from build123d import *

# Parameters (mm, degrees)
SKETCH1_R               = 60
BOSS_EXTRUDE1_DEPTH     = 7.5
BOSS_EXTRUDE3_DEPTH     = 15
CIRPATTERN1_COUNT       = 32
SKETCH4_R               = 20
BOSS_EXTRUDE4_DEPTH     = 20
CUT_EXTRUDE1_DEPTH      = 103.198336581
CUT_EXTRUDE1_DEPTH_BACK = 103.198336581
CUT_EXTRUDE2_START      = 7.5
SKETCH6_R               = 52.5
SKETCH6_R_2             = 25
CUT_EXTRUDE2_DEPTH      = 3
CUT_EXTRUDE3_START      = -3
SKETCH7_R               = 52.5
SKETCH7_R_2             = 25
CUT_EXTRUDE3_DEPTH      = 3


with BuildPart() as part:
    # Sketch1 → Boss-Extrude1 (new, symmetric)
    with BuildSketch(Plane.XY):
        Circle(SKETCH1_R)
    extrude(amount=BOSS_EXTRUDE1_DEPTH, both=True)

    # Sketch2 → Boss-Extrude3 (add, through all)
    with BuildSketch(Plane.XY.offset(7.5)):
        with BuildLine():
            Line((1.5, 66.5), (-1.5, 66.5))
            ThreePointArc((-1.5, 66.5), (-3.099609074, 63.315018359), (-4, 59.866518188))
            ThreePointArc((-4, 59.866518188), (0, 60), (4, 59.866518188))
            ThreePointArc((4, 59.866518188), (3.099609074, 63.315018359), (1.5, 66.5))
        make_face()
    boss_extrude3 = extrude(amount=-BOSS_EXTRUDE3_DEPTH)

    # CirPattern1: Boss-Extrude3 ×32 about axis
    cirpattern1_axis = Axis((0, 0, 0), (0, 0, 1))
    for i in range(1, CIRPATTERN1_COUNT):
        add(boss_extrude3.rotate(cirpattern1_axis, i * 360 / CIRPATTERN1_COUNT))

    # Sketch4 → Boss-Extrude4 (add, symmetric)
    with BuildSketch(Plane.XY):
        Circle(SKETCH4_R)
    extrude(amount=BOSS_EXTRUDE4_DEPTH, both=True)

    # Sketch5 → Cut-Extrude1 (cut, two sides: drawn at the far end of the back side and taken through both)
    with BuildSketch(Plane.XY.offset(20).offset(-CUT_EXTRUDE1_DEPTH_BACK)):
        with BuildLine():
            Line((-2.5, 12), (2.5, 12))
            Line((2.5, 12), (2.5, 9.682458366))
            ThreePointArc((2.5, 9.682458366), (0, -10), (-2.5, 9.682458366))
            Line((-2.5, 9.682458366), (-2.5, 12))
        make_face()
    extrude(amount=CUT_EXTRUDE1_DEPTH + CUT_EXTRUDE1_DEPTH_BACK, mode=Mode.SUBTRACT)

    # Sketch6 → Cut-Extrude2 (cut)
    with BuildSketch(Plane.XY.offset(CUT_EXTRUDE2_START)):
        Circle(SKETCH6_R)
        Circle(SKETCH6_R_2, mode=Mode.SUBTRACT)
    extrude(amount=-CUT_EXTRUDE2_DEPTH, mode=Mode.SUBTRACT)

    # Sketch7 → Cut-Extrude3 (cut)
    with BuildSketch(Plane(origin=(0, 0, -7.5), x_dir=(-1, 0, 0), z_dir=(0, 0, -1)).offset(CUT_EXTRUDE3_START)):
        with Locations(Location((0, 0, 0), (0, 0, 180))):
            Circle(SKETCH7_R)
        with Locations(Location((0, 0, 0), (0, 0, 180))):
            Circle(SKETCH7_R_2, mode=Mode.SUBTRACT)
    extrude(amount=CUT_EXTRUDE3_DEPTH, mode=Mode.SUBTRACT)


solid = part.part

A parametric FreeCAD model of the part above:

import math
import FreeCAD as App
import Part
import Sketcher

V = App.Vector
Q = App.Units.Quantity

doc = App.newDocument("Part")
params = doc.addObject("Spreadsheet::Sheet", "Params")
for row, (alias, value) in enumerate([
    ("sketch1_diameter", "120 mm"),
    ("pad1_length", "15 mm"),
    ("sketch2_radius", "17 mm"),
    ("sketch2_radius2", "60 mm"),
    ("sketch2_width", "3 mm"),
    ("pad2_length", "15 mm"),
    ("sketch3_diameter", "40 mm"),
    ("pad3_length", "40 mm"),
    ("sketch4_radius", "10 mm"),
    ("sketch4_width", "5 mm"),
    ("sketch5_diameter", "105 mm"),
    ("sketch5_diameter2", "50 mm"),
    ("pocket2_length", "3 mm"),
    ("sketch6_diameter", "105 mm"),
    ("sketch6_diameter2", "50 mm"),
    ("pocket3_length", "3 mm"),
], start=1):
    params.set(f"A{row}", alias)
    params.set(f"B{row}", "=" + value)
    params.setAlias(f"B{row}", alias)

body = doc.addObject("PartDesign::Body", "Body")

# Sketch on XY plane
sketch1 = body.newObject("Sketcher::SketchObject", "Sketch")
sketch1.AttachmentSupport = (doc.getObject("XY_Plane"), [""])
sketch1.MapMode = "FlatFace"
sketch1.addGeometry(Part.Circle(V(0, 0, 0), V(0, 0, 1), 60), False)
sketch1.addConstraint([
    Sketcher.Constraint("Coincident", 0, 3, -1, 1),
    Sketcher.Constraint("Diameter", 0, Q("120 mm")),
])
sketch1.setExpression("Constraints[1]", "Params.sketch1_diameter")
pad1 = body.newObject("PartDesign::Pad", "Pad")
pad1.Profile = sketch1
pad1.setExpression("Length", "Params.pad1_length")
pad1.Midplane = True

# Sketch on XY plane
sketch2 = body.newObject("Sketcher::SketchObject", "Sketch001")
sketch2.AttachmentSupport = (doc.getObject("XY_Plane"), [""])
sketch2.MapMode = "FlatFace"
sketch2.AttachmentOffset = App.Placement(V(0, 0, 7.5), App.Rotation())
sketch2.addGeometry([
    Part.LineSegment(V(1.5, 66.5, 0), V(-1.5, 66.5, 0)),
    Part.ArcOfCircle(Part.Circle(V(12.8, 57.3, 0), V(0, 0, 1), 17), math.radians(147), math.radians(171)),
    Part.ArcOfCircle(Part.Circle(V(0, 0, 0), V(0, 0, 1), 60), math.radians(86.18), math.radians(93.82)),
    Part.ArcOfCircle(Part.Circle(V(-12.8, 57.3, 0), V(0, 0, 1), 17), math.radians(9), math.radians(33)),
], False)
sketch2.addConstraint([
    Sketcher.Constraint("Coincident", 0, 2, 1, 1),
    Sketcher.Constraint("Coincident", 1, 2, 2, 2),
    Sketcher.Constraint("Coincident", 2, 1, 3, 1),
    Sketcher.Constraint("Coincident", 3, 2, 0, 1),
    Sketcher.Constraint("Horizontal", 0),
    Sketcher.Constraint("Coincident", 2, 3, -1, 1),
    Sketcher.Constraint("Equal", 1, 3),
    Sketcher.Constraint("Symmetric", 1, 3, 3, 3, -2),
    Sketcher.Constraint("Radius", 1, Q("17 mm")),
    Sketcher.Constraint("Radius", 2, Q("60 mm")),
    Sketcher.Constraint("DistanceX", 0, 2, 0, 1, Q("3 mm")),
    Sketcher.Constraint("DistanceX", 1, 2, -1, 1, Q("4 mm")),
    Sketcher.Constraint("DistanceY", -1, 1, 0, 2, Q("66.5 mm")),
])
sketch2.setExpression("Constraints[8]", "Params.sketch2_radius")
sketch2.setExpression("Constraints[9]", "Params.sketch2_radius2")
sketch2.setExpression("Constraints[10]", "Params.sketch2_width")
pad2 = body.newObject("PartDesign::Pad", "Pad001")
pad2.Profile = sketch2
pad2.setExpression("Length", "Params.pad2_length")
pad2.Reversed = True
doc.recompute()

polarpattern = body.newObject("PartDesign::PolarPattern", "PolarPattern")
polarpattern.Originals = [pad2]
polarpattern.Axis = (doc.getObject("Z_Axis"), [""])
polarpattern.Angle = 360
polarpattern.Occurrences = 32
body.Tip = polarpattern

# Sketch on XY plane
sketch3 = body.newObject("Sketcher::SketchObject", "Sketch002")
sketch3.AttachmentSupport = (doc.getObject("XY_Plane"), [""])
sketch3.MapMode = "FlatFace"
sketch3.addGeometry(Part.Circle(V(0, 0, 0), V(0, 0, 1), 20), False)
sketch3.addConstraint([
    Sketcher.Constraint("Coincident", 0, 3, -1, 1),
    Sketcher.Constraint("Diameter", 0, Q("40 mm")),
])
sketch3.setExpression("Constraints[1]", "Params.sketch3_diameter")
pad3 = body.newObject("PartDesign::Pad", "Pad002")
pad3.Profile = sketch3
pad3.setExpression("Length", "Params.pad3_length")
pad3.Midplane = True

# Sketch on XY plane
sketch4 = body.newObject("Sketcher::SketchObject", "Sketch003")
sketch4.AttachmentSupport = (doc.getObject("XY_Plane"), [""])
sketch4.MapMode = "FlatFace"
sketch4.AttachmentOffset = App.Placement(V(0, 0, 20), App.Rotation())
sketch4.addGeometry([
    Part.LineSegment(V(2.5, 12, 0), V(-2.5, 12, 0)),
    Part.LineSegment(V(-2.5, 12, 0), V(-2.5, 9.7, 0)),
    Part.ArcOfCircle(Part.Circle(V(0, 0, 0), V(0, 0, 1), 10), math.radians(104), math.radians(436)),
    Part.LineSegment(V(2.5, 9.7, 0), V(2.5, 12, 0)),
], False)
sketch4.addConstraint([
    Sketcher.Constraint("Coincident", 0, 2, 1, 1),
    Sketcher.Constraint("Coincident", 1, 2, 2, 1),
    Sketcher.Constraint("Coincident", 2, 2, 3, 1),
    Sketcher.Constraint("Coincident", 3, 2, 0, 1),
    Sketcher.Constraint("Horizontal", 0),
    Sketcher.Constraint("Vertical", 1),
    Sketcher.Constraint("Vertical", 3),
    Sketcher.Constraint("Coincident", 2, 3, -1, 1),
    Sketcher.Constraint("Horizontal", 1, 2, 2, 2),
    Sketcher.Constraint("Radius", 2, Q("10 mm")),
    Sketcher.Constraint("DistanceX", 0, 2, 0, 1, Q("5 mm")),
    Sketcher.Constraint("DistanceY", -1, 1, 0, 2, Q("12 mm")),
])
sketch4.setExpression("Constraints[9]", "Params.sketch4_radius")
sketch4.setExpression("Constraints[10]", "Params.sketch4_width")
pocket1 = body.newObject("PartDesign::Pocket", "Pocket")
pocket1.Profile = sketch4
pocket1.Type = "ThroughAll"
pocket1.Midplane = True

# Sketch on XY plane
sketch5 = body.newObject("Sketcher::SketchObject", "Sketch004")
sketch5.AttachmentSupport = (doc.getObject("XY_Plane"), [""])
sketch5.MapMode = "FlatFace"
sketch5.AttachmentOffset = App.Placement(V(0, 0, 7.5), App.Rotation())
sketch5.addGeometry([
    Part.Circle(V(0, 0, 0), V(0, 0, 1), 52),
    Part.Circle(V(0, 0, 0), V(0, 0, 1), 25),
], False)
sketch5.addConstraint([
    Sketcher.Constraint("Coincident", 0, 3, -1, 1),
    Sketcher.Constraint("Coincident", 1, 3, -1, 1),
    Sketcher.Constraint("Diameter", 0, Q("105 mm")),
    Sketcher.Constraint("Diameter", 1, Q("50 mm")),
])
sketch5.setExpression("Constraints[2]", "Params.sketch5_diameter")
sketch5.setExpression("Constraints[3]", "Params.sketch5_diameter2")
pocket2 = body.newObject("PartDesign::Pocket", "Pocket001")
pocket2.Profile = sketch5
pocket2.setExpression("Length", "Params.pocket2_length")

# Sketch on XY plane
sketch6 = body.newObject("Sketcher::SketchObject", "Sketch005")
sketch6.AttachmentSupport = (doc.getObject("XY_Plane"), [""])
sketch6.MapMode = "FlatFace"
sketch6.AttachmentOffset = App.Placement(V(0, 0, -4.5), App.Rotation())
sketch6.addGeometry([
    Part.Circle(V(0, 0, 0), V(0, 0, 1), 52),
    Part.Circle(V(0, 0, 0), V(0, 0, 1), 25),
], False)
sketch6.addConstraint([
    Sketcher.Constraint("Coincident", 0, 3, -1, 1),
    Sketcher.Constraint("Coincident", 1, 3, -1, 1),
    Sketcher.Constraint("Diameter", 0, Q("105 mm")),
    Sketcher.Constraint("Diameter", 1, Q("50 mm")),
])
sketch6.setExpression("Constraints[2]", "Params.sketch6_diameter")
sketch6.setExpression("Constraints[3]", "Params.sketch6_diameter2")
pocket3 = body.newObject("PartDesign::Pocket", "Pocket002")
pocket3.Profile = sketch6
pocket3.setExpression("Length", "Params.pocket3_length")

doc.recompute()
